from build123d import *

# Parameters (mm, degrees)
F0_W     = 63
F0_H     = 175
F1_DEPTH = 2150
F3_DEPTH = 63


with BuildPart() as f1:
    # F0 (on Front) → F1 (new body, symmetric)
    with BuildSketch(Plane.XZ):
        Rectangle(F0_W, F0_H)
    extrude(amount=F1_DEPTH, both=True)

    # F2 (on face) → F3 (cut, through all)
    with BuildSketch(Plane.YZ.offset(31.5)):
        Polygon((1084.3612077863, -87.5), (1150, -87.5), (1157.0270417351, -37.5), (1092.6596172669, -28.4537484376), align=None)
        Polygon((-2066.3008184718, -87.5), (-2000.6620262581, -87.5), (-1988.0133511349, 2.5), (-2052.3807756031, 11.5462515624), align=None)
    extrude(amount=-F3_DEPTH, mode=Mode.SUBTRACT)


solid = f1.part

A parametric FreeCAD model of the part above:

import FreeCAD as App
import Part
import Sketcher
Q = App.Units.Quantity


def add_polygon(sketch, points):
    """Adds a closed chain of lines whose ends are joined by coincident constraints."""
    first, n = sketch.GeometryCount, len(points)
    for a, b in zip(points, points[1:] + points[:1]):
        sketch.addGeometry(Part.LineSegment(App.Vector(*a, 0), App.Vector(*b, 0)), False)
    for i in range(n):
        sketch.addConstraint(Sketcher.Constraint("Coincident", first + i, 2, first + (i + 1) % n, 1))

doc = App.newDocument("Part")
body = doc.addObject("PartDesign::Body", "Body")

sketch1 = body.newObject("Sketcher::SketchObject", "Sketch")
sketch1.AttachmentSupport = (doc.getObject("XZ_Plane"), [""])
sketch1.MapMode = "FlatFace"
add_polygon(sketch1, [(-32, 88), (-32, -88), (32, -88), (32, 88)])
sketch1.addConstraint(Sketcher.Constraint("Vertical", 0))
sketch1.addConstraint(Sketcher.Constraint("Horizontal", 1))
sketch1.addConstraint(Sketcher.Constraint("Vertical", 2))
sketch1.addConstraint(Sketcher.Constraint("Horizontal", 3))
sketch1.addConstraint(Sketcher.Constraint("Symmetric", 0, 2, 2, 2, -1, 1))
sketch1.addConstraint(Sketcher.Constraint("DistanceX", 1, 1, 1, 2, 63.0))
sketch1.addConstraint(Sketcher.Constraint("DistanceY", 0, 2, 0, 1, 175.0))
pad1 = body.newObject("PartDesign::Pad", "Pad")
pad1.Profile = sketch1
pad1.Length = 4300
pad1.Midplane = True

sketch2 = body.newObject("Sketcher::SketchObject", "Sketch001")
sketch2.AttachmentSupport = (doc.getObject("YZ_Plane"), [""])
sketch2.MapMode = "FlatFace"
sketch2.AttachmentOffset = App.Placement(App.Vector(0, 0, 31.5), App.Rotation())
add_polygon(sketch2, [(1084, -88), (1150, -88), (1157, -38), (1093, -28)])
add_polygon(sketch2, [(-2066, -88), (-2001, -88), (-1988, 2), (-2052, 12)])
sketch2.addConstraint(Sketcher.Constraint("Horizontal", 0))
sketch2.addConstraint(Sketcher.Constraint("Horizontal", 4))
sketch2.addConstraint(Sketcher.Constraint("Perpendicular", 1, 2))
sketch2.addConstraint(Sketcher.Constraint("Perpendicular", 2, 3))
sketch2.addConstraint(Sketcher.Constraint("Parallel", 3, 5))
sketch2.addConstraint(Sketcher.Constraint("Perpendicular", 5, 6))
sketch2.addConstraint(Sketcher.Constraint("Perpendicular", 6, 7))
sketch2.addConstraint(Sketcher.Constraint("Horizontal", 3, 2, 4, 2))
sketch2.addConstraint(Sketcher.Constraint("Equal", 0, 4))
sketch2.addConstraint(Sketcher.Constraint("Angle", 1, Q("82 deg")))
sketch2.addConstraint(Sketcher.Constraint("Distance", 2, 65.0))
sketch2.addConstraint(Sketcher.Constraint("DistanceX", -1, 1, 0, 2, 1150.0))
sketch2.addConstraint(Sketcher.Constraint("DistanceY", 0, 2, 1, 2, 50.0))
sketch2.addConstraint(Sketcher.Constraint("DistanceY", 4, 2, 5, 2, 90.0))
sketch2.addConstraint(Sketcher.Constraint("DistanceY", 0, 2, -1, 1, 87.5))
sketch2.addConstraint(Sketcher.Constraint("DistanceX", 5, 2, -1, 1, 1988.013351))
pocket1 = body.newObject("PartDesign::Pocket", "Pocket")
pocket1.Profile = sketch2
pocket1.Type = "ThroughAll"

doc.recompute()
